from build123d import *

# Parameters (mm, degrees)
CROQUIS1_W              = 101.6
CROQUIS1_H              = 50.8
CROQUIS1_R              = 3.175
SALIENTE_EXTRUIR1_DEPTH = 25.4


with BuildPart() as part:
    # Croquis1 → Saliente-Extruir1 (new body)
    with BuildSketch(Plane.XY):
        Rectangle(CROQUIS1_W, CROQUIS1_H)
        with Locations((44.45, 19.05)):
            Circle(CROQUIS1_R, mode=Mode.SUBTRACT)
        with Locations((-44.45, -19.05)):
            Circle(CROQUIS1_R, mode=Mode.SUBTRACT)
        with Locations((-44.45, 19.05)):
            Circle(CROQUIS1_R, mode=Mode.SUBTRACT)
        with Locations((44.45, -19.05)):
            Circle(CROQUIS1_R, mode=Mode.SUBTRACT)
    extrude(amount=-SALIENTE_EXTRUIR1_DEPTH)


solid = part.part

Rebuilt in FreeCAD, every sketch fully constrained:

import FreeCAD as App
import Part
import Sketcher
from FreeCAD import Vector
Q = App.Units.Quantity


def add_polygon(sketch, points):
    """Adds a closed chain of lines whose ends are joined by coincident constraints."""
    first, n = sketch.GeometryCount, len(points)
    for a, b in zip(points, points[1:] + points[:1]):
        sketch.addGeometry(Part.LineSegment(App.Vector(*a, 0), App.Vector(*b, 0)), False)
    for i in range(n):
        sketch.addConstraint(Sketcher.Constraint("Coincident", first + i, 2, first + (i + 1) % n, 1))

doc = App.newDocument("Part")
params = doc.addObject("Spreadsheet::Sheet", "Params")
for row, (alias, value) in enumerate([
    ("sketch1_diameter", "0.25 in"),
    ("sketch1_width", "4 in"),
    ("sketch1_height", "2 in"),
    ("pad1_length", "1 in"),
], start=1):
    params.set(f"A{row}", alias)
    params.set(f"B{row}", "=" + value)
    params.setAlias(f"B{row}", alias)

body = doc.addObject("PartDesign::Body", "Body")

# Sketch on XY plane
sketch1 = body.newObject("Sketcher::SketchObject", "Sketch")
sketch1.AttachmentSupport = (doc.getObject("XY_Plane"), [""])
sketch1.MapMode = "FlatFace"
add_polygon(sketch1, [(-50.8, 25.4), (-50.8, -25.4), (50.8, -25.4), (50.8, 25.4)])  # lines 0-3
sketch1.addGeometry(Part.Circle(Vector(-44.45, -19.05, 0), Vector(0, 0, 1), 3.175), False)  # 4
sketch1.addGeometry(Part.Circle(Vector(44.45, -19.05, 0), Vector(0, 0, 1), 3.175), False)  # 5
sketch1.addGeometry(Part.Circle(Vector(-44.45, 19.05, 0), Vector(0, 0, 1), 3.175), False)  # 6
sketch1.addGeometry(Part.Circle(Vector(44.45, 19.05, 0), Vector(0, 0, 1), 3.175), False)  # 7
sketch1.addConstraint([
    Sketcher.Constraint("Vertical", 0),
    Sketcher.Constraint("Horizontal", 1),
    Sketcher.Constraint("Vertical", 2),
    Sketcher.Constraint("Horizontal", 3),
    Sketcher.Constraint("Equal", 4, 5),
    Sketcher.Constraint("Equal", 5, 6),
    Sketcher.Constraint("Equal", 6, 7),
    Sketcher.Constraint("Symmetric", 5, 3, 6, 3, -1, 1),
    Sketcher.Constraint("Symmetric", 4, 3, 7, 3, -1, 1),
    Sketcher.Constraint("Symmetric", 0, 2, 2, 2, -1, 1),
    Sketcher.Constraint("Symmetric", 4, 3, 5, 3, -2),
    Sketcher.Constraint("Diameter", 4, Q("0.25 in")),
    Sketcher.Constraint("DistanceX", 1, 1, 1, 2, Q("4 in")),
    Sketcher.Constraint("DistanceY", 0, 2, 0, 1, Q("2 in")),
    Sketcher.Constraint("DistanceX", 4, 3, 5, 3, Q("3.5 in")),
    Sketcher.Constraint("DistanceY", 4, 3, 6, 3, Q("1.5 in")),
])
sketch1.setExpression("Constraints[15]", "Params.sketch1_diameter")
sketch1.setExpression("Constraints[16]", "Params.sketch1_width")
sketch1.setExpression("Constraints[17]", "Params.sketch1_height")
pad1 = body.newObject("PartDesign::Pad", "Pad")
pad1.Profile = sketch1
pad1.setExpression("Length", "Params.pad1_length")
pad1.Reversed = True

doc.recompute()
